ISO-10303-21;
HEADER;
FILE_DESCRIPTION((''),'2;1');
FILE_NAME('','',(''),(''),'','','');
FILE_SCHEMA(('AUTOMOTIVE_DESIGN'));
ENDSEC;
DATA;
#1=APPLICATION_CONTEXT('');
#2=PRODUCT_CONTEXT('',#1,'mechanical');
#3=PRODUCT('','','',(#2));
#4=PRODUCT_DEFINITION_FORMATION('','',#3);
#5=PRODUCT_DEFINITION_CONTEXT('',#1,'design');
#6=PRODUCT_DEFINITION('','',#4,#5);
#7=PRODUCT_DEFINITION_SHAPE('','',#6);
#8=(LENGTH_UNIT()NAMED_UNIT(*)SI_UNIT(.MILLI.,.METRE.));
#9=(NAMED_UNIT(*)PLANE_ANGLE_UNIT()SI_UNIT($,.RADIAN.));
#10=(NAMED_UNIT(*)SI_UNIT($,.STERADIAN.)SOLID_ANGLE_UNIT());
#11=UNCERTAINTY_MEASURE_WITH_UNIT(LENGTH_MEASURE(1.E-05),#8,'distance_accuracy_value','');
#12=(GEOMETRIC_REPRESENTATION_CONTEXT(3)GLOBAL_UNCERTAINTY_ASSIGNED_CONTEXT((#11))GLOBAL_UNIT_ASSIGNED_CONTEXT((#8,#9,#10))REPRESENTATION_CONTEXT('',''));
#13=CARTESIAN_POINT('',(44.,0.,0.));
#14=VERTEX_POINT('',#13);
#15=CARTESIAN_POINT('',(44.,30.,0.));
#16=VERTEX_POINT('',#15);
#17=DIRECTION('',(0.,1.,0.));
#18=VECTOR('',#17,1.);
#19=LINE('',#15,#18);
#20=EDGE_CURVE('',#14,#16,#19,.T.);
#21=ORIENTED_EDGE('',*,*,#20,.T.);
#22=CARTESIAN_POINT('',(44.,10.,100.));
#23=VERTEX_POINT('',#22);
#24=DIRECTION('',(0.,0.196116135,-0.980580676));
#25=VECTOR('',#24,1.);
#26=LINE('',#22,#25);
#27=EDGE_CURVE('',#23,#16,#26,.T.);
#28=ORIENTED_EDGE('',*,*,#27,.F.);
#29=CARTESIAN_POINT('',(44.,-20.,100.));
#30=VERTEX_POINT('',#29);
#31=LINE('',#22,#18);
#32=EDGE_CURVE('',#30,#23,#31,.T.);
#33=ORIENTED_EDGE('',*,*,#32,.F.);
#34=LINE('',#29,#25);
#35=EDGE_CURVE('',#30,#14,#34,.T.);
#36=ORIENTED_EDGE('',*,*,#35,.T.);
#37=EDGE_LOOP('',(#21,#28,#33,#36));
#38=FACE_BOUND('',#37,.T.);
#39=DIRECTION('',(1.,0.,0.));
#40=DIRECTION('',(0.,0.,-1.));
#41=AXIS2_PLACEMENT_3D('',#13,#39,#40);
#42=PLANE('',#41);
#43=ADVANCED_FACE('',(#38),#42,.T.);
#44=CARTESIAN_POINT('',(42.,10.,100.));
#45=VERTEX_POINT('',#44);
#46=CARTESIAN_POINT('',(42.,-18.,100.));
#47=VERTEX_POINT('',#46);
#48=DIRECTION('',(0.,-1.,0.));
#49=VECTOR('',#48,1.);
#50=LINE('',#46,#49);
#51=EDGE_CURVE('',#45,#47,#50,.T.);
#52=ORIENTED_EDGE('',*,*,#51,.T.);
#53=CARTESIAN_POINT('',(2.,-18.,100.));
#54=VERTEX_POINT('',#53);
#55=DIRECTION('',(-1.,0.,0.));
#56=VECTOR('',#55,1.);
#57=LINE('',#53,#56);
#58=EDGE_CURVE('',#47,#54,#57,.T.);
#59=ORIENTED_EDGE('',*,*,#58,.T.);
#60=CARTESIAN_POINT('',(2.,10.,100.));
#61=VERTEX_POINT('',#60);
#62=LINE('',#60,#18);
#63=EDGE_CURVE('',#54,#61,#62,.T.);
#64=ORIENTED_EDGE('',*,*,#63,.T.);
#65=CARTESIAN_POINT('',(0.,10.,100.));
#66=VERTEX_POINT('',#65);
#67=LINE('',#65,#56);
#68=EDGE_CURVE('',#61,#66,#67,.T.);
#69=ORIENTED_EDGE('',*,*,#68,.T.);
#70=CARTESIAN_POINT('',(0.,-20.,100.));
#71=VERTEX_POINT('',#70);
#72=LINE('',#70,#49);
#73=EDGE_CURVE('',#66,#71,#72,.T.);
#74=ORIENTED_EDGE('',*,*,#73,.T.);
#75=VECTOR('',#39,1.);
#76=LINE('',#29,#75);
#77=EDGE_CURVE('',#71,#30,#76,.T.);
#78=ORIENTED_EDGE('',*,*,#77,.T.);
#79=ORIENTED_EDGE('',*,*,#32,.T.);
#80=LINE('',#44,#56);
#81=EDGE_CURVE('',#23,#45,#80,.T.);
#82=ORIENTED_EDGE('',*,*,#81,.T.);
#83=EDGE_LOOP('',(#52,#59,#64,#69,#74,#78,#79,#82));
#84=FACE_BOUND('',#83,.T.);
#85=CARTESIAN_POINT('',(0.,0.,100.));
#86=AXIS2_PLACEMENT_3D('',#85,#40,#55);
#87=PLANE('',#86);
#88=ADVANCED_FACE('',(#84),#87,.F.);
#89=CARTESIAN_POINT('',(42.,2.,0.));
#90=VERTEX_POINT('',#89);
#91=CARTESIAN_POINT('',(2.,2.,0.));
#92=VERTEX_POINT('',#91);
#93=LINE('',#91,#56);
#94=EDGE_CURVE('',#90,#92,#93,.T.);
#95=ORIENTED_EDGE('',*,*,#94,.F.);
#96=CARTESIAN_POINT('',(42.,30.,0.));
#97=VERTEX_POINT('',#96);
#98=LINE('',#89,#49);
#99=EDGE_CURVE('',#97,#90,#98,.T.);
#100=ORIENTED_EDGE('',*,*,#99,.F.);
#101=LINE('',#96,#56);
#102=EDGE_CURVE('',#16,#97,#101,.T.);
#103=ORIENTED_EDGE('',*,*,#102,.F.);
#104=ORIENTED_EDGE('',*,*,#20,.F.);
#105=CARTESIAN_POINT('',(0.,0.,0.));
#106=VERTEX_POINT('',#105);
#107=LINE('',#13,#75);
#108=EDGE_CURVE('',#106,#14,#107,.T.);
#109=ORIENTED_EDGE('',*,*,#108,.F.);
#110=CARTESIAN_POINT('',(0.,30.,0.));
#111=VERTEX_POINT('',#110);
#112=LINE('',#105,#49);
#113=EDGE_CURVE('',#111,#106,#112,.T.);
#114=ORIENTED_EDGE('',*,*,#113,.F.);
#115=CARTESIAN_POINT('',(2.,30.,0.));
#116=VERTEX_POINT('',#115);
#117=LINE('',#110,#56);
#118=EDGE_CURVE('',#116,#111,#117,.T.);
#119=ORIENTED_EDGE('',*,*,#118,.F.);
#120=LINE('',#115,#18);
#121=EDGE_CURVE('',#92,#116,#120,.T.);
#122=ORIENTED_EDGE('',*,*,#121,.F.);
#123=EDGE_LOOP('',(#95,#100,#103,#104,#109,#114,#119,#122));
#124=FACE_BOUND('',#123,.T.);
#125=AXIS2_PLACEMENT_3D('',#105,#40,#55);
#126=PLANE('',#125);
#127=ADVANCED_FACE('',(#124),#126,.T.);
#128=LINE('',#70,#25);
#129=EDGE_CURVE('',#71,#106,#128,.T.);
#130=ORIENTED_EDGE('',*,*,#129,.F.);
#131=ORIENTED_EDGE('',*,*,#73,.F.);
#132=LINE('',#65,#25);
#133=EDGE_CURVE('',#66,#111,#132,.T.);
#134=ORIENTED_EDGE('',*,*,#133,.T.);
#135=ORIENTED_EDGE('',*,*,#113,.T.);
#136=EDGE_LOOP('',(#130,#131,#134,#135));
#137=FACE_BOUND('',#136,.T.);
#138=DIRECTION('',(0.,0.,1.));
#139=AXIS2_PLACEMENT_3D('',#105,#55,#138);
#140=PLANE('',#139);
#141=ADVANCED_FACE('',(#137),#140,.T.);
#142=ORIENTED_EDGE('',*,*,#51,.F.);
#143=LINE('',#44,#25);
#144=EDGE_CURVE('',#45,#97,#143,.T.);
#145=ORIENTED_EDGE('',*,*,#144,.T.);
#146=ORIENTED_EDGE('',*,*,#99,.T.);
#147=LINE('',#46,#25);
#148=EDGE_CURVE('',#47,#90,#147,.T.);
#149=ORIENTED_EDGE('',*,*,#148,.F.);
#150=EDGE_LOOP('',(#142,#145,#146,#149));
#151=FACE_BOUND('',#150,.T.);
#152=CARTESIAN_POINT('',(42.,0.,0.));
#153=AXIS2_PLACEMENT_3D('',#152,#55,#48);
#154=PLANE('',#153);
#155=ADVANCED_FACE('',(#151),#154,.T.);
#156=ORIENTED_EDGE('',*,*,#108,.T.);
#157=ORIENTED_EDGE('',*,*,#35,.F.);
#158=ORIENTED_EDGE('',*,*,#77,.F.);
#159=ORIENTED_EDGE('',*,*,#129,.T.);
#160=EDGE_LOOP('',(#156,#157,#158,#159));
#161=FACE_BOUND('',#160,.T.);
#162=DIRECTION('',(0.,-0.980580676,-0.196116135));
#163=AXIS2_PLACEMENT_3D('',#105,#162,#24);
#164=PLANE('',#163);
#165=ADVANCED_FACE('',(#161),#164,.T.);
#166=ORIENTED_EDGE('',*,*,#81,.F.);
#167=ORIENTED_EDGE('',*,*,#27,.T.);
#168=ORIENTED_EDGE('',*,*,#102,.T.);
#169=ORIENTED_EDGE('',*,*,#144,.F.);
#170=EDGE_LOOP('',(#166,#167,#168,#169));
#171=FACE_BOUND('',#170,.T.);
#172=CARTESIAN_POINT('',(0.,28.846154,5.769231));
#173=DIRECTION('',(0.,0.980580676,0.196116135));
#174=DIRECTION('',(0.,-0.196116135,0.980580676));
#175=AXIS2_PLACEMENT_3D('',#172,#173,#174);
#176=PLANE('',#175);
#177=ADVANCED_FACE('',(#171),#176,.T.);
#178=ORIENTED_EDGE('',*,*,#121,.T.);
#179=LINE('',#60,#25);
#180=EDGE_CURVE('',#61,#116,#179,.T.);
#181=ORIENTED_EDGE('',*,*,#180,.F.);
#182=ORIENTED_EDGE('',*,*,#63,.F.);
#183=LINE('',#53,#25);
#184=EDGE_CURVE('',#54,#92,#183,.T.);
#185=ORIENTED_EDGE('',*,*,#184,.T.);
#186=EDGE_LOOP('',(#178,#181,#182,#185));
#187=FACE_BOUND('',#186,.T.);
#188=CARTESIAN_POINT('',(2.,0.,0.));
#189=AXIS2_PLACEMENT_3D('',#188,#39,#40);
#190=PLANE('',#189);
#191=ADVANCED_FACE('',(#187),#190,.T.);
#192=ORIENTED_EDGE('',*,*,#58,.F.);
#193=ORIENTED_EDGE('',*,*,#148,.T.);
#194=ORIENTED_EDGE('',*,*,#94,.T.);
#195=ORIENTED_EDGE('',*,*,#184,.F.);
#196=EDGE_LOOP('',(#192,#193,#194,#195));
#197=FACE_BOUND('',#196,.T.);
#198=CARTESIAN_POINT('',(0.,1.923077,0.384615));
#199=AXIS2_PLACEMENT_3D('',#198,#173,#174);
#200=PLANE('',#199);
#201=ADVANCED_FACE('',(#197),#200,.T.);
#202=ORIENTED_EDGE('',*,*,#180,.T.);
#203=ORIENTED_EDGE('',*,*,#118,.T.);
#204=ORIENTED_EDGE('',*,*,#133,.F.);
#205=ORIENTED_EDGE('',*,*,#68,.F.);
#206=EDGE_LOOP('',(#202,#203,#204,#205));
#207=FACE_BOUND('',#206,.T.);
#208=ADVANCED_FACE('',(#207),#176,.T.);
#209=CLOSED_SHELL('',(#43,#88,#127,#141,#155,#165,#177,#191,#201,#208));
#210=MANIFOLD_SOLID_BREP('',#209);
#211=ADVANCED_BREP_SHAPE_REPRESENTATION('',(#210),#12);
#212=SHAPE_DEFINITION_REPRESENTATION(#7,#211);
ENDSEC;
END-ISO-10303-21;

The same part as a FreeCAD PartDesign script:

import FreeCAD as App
import Part
import Sketcher

doc = App.newDocument("Part")
body = doc.addObject("PartDesign::Body", "Body")

sketch1 = body.newObject("Sketcher::SketchObject", "Sketch")
sketch1.AttachmentSupport = (doc.getObject("XY_Plane"), [""])
sketch1.MapMode = "FlatFace"
sketch1.AttachmentOffset = App.Placement(App.Vector(0, 0, 100), App.Rotation())
sketch1.addGeometry([
    Part.LineSegment(App.Vector(44, -20, 0), App.Vector(44, 10, 0)),
    Part.LineSegment(App.Vector(44, 10, 0), App.Vector(42, 10, 0)),
    Part.LineSegment(App.Vector(42, 10, 0), App.Vector(42, -18, 0)),
    Part.LineSegment(App.Vector(42, -18, 0), App.Vector(2, -18, 0)),
    Part.LineSegment(App.Vector(2, -18, 0), App.Vector(2, 10, 0)),
    Part.LineSegment(App.Vector(2, 10, 0), App.Vector(0, 10, 0)),
    Part.LineSegment(App.Vector(0, 10, 0), App.Vector(0, -20, 0)),
    Part.LineSegment(App.Vector(0, -20, 0), App.Vector(44, -20, 0)),
], False)
sketch1.addConstraint([
    Sketcher.Constraint("Coincident", 0, 2, 1, 1),
    Sketcher.Constraint("Coincident", 1, 2, 2, 1),
    Sketcher.Constraint("Coincident", 2, 2, 3, 1),
    Sketcher.Constraint("Coincident", 3, 2, 4, 1),
    Sketcher.Constraint("Coincident", 4, 2, 5, 1),
    Sketcher.Constraint("Coincident", 5, 2, 6, 1),
    Sketcher.Constraint("Coincident", 6, 2, 7, 1),
    Sketcher.Constraint("Coincident", 7, 2, 0, 1),
    Sketcher.Constraint("Vertical", 0),
    Sketcher.Constraint("Horizontal", 1),
    Sketcher.Constraint("Vertical", 2),
    Sketcher.Constraint("Horizontal", 3),
    Sketcher.Constraint("Vertical", 4),
    Sketcher.Constraint("Horizontal", 5),
    Sketcher.Constraint("Vertical", 6),
    Sketcher.Constraint("Horizontal", 7),
    Sketcher.Constraint("PointOnObject", 5, 2, -2),
    Sketcher.Constraint("Horizontal", 1, 2, 4, 2),
    Sketcher.Constraint("Equal", 1, 5),
    Sketcher.Constraint("DistanceX", 1, 2, 1, 1, 2.0),
    Sketcher.Constraint("DistanceX", 3, 2, 3, 1, 40.0),
    Sketcher.Constraint("DistanceY", 0, 1, 0, 2, 30.0),
    Sketcher.Constraint("DistanceY", 2, 2, 2, 1, 28.0),
    Sketcher.Constraint("DistanceY", -1, 1, 0, 2, 10.0),
])

sketch2 = body.newObject("Sketcher::SketchObject", "Sketch001")
sketch2.AttachmentSupport = (doc.getObject("XY_Plane"), [""])
sketch2.MapMode = "FlatFace"
sketch2.addGeometry([
    Part.LineSegment(App.Vector(44, 0, 0), App.Vector(44, 30, 0)),
    Part.LineSegment(App.Vector(44, 30, 0), App.Vector(42, 30, 0)),
    Part.LineSegment(App.Vector(42, 30, 0), App.Vector(42, 2, 0)),
    Part.LineSegment(App.Vector(42, 2, 0), App.Vector(2, 2, 0)),
    Part.LineSegment(App.Vector(2, 2, 0), App.Vector(2, 30, 0)),
    Part.LineSegment(App.Vector(2, 30, 0), App.Vector(0, 30, 0)),
    Part.LineSegment(App.Vector(0, 30, 0), App.Vector(0, 0, 0)),
    Part.LineSegment(App.Vector(0, 0, 0), App.Vector(44, 0, 0)),
], False)
sketch2.addConstraint([
    Sketcher.Constraint("Coincident", 0, 2, 1, 1),
    Sketcher.Constraint("Coincident", 1, 2, 2, 1),
    Sketcher.Constraint("Coincident", 2, 2, 3, 1),
    Sketcher.Constraint("Coincident", 3, 2, 4, 1),
    Sketcher.Constraint("Coincident", 4, 2, 5, 1),
    Sketcher.Constraint("Coincident", 5, 2, 6, 1),
    Sketcher.Constraint("Coincident", 6, 2, 7, 1),
    Sketcher.Constraint("Coincident", 7, 2, 0, 1),
    Sketcher.Constraint("Vertical", 0),
    Sketcher.Constraint("Horizontal", 1),
    Sketcher.Constraint("Vertical", 2),
    Sketcher.Constraint("Horizontal", 3),
    Sketcher.Constraint("Vertical", 4),
    Sketcher.Constraint("Horizontal", 5),
    Sketcher.Constraint("Vertical", 6),
    Sketcher.Constraint("Horizontal", 7),
    Sketcher.Constraint("Coincident", 6, 2, -1, 1),
    Sketcher.Constraint("Horizontal", 1, 2, 4, 2),
    Sketcher.Constraint("Equal", 1, 5),
    Sketcher.Constraint("DistanceX", 1, 2, 1, 1, 2.0),
    Sketcher.Constraint("DistanceX", 3, 2, 3, 1, 40.0),
    Sketcher.Constraint("DistanceY", 0, 1, 0, 2, 30.0),
    Sketcher.Constraint("DistanceY", 2, 2, 2, 1, 28.0),
])

additiveloft = body.newObject("PartDesign::AdditiveLoft", "AdditiveLoft")
additiveloft.Profile = sketch1
additiveloft.Sections = [sketch2]

doc.recompute()
